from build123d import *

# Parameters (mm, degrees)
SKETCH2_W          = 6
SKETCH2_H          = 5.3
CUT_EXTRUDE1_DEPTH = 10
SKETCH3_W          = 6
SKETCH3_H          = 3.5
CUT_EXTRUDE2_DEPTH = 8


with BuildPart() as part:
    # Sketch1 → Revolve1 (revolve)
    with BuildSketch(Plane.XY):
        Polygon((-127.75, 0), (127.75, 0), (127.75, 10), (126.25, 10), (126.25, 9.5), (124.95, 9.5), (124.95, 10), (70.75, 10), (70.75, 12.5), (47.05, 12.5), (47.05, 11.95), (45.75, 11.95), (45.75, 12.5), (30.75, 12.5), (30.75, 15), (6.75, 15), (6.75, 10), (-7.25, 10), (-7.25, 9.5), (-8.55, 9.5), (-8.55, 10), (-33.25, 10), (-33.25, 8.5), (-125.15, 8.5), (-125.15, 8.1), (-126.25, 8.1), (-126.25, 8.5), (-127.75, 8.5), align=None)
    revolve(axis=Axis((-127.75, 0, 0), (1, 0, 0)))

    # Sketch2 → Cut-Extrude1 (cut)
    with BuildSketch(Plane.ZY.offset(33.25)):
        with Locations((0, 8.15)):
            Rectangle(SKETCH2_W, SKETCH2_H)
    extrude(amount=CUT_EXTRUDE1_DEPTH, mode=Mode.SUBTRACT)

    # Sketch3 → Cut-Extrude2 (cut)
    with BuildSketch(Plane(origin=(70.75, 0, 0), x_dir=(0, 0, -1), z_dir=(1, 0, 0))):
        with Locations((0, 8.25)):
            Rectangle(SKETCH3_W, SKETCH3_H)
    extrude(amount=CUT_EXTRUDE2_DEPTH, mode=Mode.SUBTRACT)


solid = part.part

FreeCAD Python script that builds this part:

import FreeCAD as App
import Part
import Sketcher
from FreeCAD import Vector
Q = App.Units.Quantity


def add_polygon(sketch, points):
    """Adds a closed chain of lines whose ends are joined by coincident constraints."""
    first, n = sketch.GeometryCount, len(points)
    for a, b in zip(points, points[1:] + points[:1]):
        sketch.addGeometry(Part.LineSegment(App.Vector(*a, 0), App.Vector(*b, 0)), False)
    for i in range(n):
        sketch.addConstraint(Sketcher.Constraint("Coincident", first + i, 2, first + (i + 1) % n, 1))

doc = App.newDocument("Part")
params = doc.addObject("Spreadsheet::Sheet", "Params")
for row, (alias, value) in enumerate([
    ("sketch1_width", "15 mm"),
    ("sketch1_width2", "24 mm"),
    ("sketch1_width3", "14 mm"),
    ("sketch1_height", "10 mm"),
    ("sketch1_height2", "5 mm"),
    ("revolution_angle", "360 deg"),
    ("sketch2_height", "6 mm"),
    ("sketch2_width", "5.3 mm"),
    ("pocket1_length", "10 mm"),
    ("sketch3_height", "6 mm"),
    ("sketch3_width", "3.5 mm"),
    ("pocket2_length", "8 mm"),
], start=1):
    params.set(f"A{row}", alias)
    params.set(f"B{row}", "=" + value)
    params.setAlias(f"B{row}", alias)

body = doc.addObject("PartDesign::Body", "Body")

sketch1 = body.newObject("Sketcher::SketchObject", "Sketch")
sketch1.AttachmentSupport = (doc.getObject("XY_Plane"), [""])
sketch1.MapMode = "FlatFace"
add_polygon(sketch1, [(-127.75, 0), (127.75, 0), (127.75, 10), (126.25, 10), (126.25, 9.5), (124.95, 9.5), (124.95, 10), (70.75, 10), (70.75, 12.5), (47.05, 12.5), (47.05, 11.95), (45.75, 11.95), (45.75, 12.5), (30.75, 12.5), (30.75, 15), (6.75, 15), (6.75, 10), (-7.25, 10), (-7.25, 9.5), (-8.55, 9.5), (-8.55, 10), (-33.25, 10), (-33.25, 8.5), (-125.15, 8.5), (-125.15, 8.1), (-126.25, 8.1), (-126.25, 8.5), (-127.75, 8.5)])
sketch1.addConstraint(Sketcher.Constraint("Horizontal", 0))
sketch1.addConstraint(Sketcher.Constraint("Vertical", 1))
sketch1.addConstraint(Sketcher.Constraint("Horizontal", 2))
sketch1.addConstraint(Sketcher.Constraint("Vertical", 3))
sketch1.addConstraint(Sketcher.Constraint("Horizontal", 4))
sketch1.addConstraint(Sketcher.Constraint("Vertical", 5))
sketch1.addConstraint(Sketcher.Constraint("Horizontal", 6))
sketch1.addConstraint(Sketcher.Constraint("Vertical", 7))
sketch1.addConstraint(Sketcher.Constraint("Horizontal", 8))
sketch1.addConstraint(Sketcher.Constraint("Vertical", 9))
sketch1.addConstraint(Sketcher.Constraint("Horizontal", 10))
sketch1.addConstraint(Sketcher.Constraint("Vertical", 11))
sketch1.addConstraint(Sketcher.Constraint("Horizontal", 12))
sketch1.addConstraint(Sketcher.Constraint("Vertical", 13))
sketch1.addConstraint(Sketcher.Constraint("Horizontal", 14))
sketch1.addConstraint(Sketcher.Constraint("Vertical", 15))
sketch1.addConstraint(Sketcher.Constraint("Horizontal", 16))
sketch1.addConstraint(Sketcher.Constraint("Vertical", 17))
sketch1.addConstraint(Sketcher.Constraint("Horizontal", 18))
sketch1.addConstraint(Sketcher.Constraint("Vertical", 19))
sketch1.addConstraint(Sketcher.Constraint("Horizontal", 20))
sketch1.addConstraint(Sketcher.Constraint("Vertical", 21))
sketch1.addConstraint(Sketcher.Constraint("Horizontal", 22))
sketch1.addConstraint(Sketcher.Constraint("Vertical", 23))
sketch1.addConstraint(Sketcher.Constraint("Horizontal", 24))
sketch1.addConstraint(Sketcher.Constraint("Vertical", 25))
sketch1.addConstraint(Sketcher.Constraint("Horizontal", 26))
sketch1.addConstraint(Sketcher.Constraint("Vertical", 27))
sketch1.addConstraint(Sketcher.Constraint("Symmetric", 0, 2, 27, 2, -1, 1))
sketch1.addConstraint(Sketcher.Constraint("Horizontal", 2, 2, 5, 2))
sketch1.addConstraint(Sketcher.Constraint("Horizontal", 8, 2, 11, 2))
sketch1.addConstraint(Sketcher.Constraint("Horizontal", 6, 2, 15, 2))
sketch1.addConstraint(Sketcher.Constraint("Horizontal", 4, 2, 17, 2))
sketch1.addConstraint(Sketcher.Constraint("Horizontal", 16, 2, 19, 2))
sketch1.addConstraint(Sketcher.Constraint("Horizontal", 22, 2, 25, 2))
sketch1.addConstraint(Sketcher.Constraint("Equal", 4, 10))
sketch1.addConstraint(Sketcher.Constraint("Equal", 10, 18))
sketch1.addConstraint(Sketcher.Constraint("Equal", 2, 26))
sketch1.addConstraint(Sketcher.Constraint("Equal", 7, 13))
sketch1.addConstraint(Sketcher.Constraint("Equal", 26, 21))
sketch1.addConstraint(Sketcher.Constraint("DistanceX", 12, 2, 12, 1, Q("15 mm")))
sketch1.addConstraint(Sketcher.Constraint("DistanceX", 14, 2, 14, 1, Q("24 mm")))
sketch1.addConstraint(Sketcher.Constraint("DistanceX", 16, 2, 16, 1, Q("14 mm")))
sketch1.addConstraint(Sketcher.Constraint("DistanceY", 1, 1, 1, 2, Q("10 mm")))
sketch1.addConstraint(Sketcher.Constraint("DistanceY", 15, 2, 15, 1, Q("5 mm")))
sketch1.addConstraint(Sketcher.Constraint("DistanceX", 0, 1, 0, 2, Q("255.5 mm")))
sketch1.addConstraint(Sketcher.Constraint("DistanceX", 2, 2, 2, 1, Q("1.5 mm")))
sketch1.addConstraint(Sketcher.Constraint("DistanceX", 4, 2, 4, 1, Q("1.3 mm")))
sketch1.addConstraint(Sketcher.Constraint("DistanceX", 6, 2, 6, 1, Q("54.2 mm")))
sketch1.addConstraint(Sketcher.Constraint("DistanceX", 8, 2, 8, 1, Q("23.7 mm")))
sketch1.addConstraint(Sketcher.Constraint("DistanceX", 20, 2, 20, 1, Q("24.7 mm")))
sketch1.addConstraint(Sketcher.Constraint("DistanceX", 22, 2, 22, 1, Q("91.9 mm")))
sketch1.addConstraint(Sketcher.Constraint("DistanceY", 3, 2, 3, 1, Q("0.5 mm")))
sketch1.addConstraint(Sketcher.Constraint("DistanceY", 23, 2, 23, 1, Q("0.4 mm")))
sketch1.addConstraint(Sketcher.Constraint("DistanceY", 9, 2, 9, 1, Q("0.55 mm")))
sketch1.setExpression("Constraints[68]", "Params.sketch1_width")
sketch1.setExpression("Constraints[69]", "Params.sketch1_width2")
sketch1.setExpression("Constraints[70]", "Params.sketch1_width3")
sketch1.setExpression("Constraints[71]", "Params.sketch1_height")
sketch1.setExpression("Constraints[72]", "Params.sketch1_height2")
revolution = body.newObject("PartDesign::Revolution", "Revolution")
revolution.Profile = sketch1
revolution.ReferenceAxis = (sketch1, ["H_Axis"])
revolution.setExpression("Angle", "Params.revolution_angle")

sketch2 = body.newObject("Sketcher::SketchObject", "Sketch001")
sketch2.AttachmentSupport = (doc.getObject("YZ_Plane"), [""])
sketch2.MapMode = "FlatFace"
sketch2.AttachmentOffset = App.Placement(Vector(0, 0, -33.25), App.Rotation())
add_polygon(sketch2, [(11, -3), (6, -3), (6, 3), (11, 3)])
sketch2.addConstraint(Sketcher.Constraint("Horizontal", 0))
sketch2.addConstraint(Sketcher.Constraint("Vertical", 1))
sketch2.addConstraint(Sketcher.Constraint("Horizontal", 2))
sketch2.addConstraint(Sketcher.Constraint("Vertical", 3))
sketch2.addConstraint(Sketcher.Constraint("DistanceY", 1, 1, 1, 2, Q("6 mm")))
sketch2.addConstraint(Sketcher.Constraint("DistanceX", 0, 2, 0, 1, Q("5.3 mm")))
sketch2.addConstraint(Sketcher.Constraint("DistanceY", 0, 2, -1, 1, Q("3 mm")))
sketch2.addConstraint(Sketcher.Constraint("DistanceX", -1, 1, 0, 2, Q("5.5 mm")))
sketch2.setExpression("Constraints[8]", "Params.sketch2_height")
sketch2.setExpression("Constraints[9]", "Params.sketch2_width")
pocket1 = body.newObject("PartDesign::Pocket", "Pocket")
pocket1.Profile = sketch2
pocket1.setExpression("Length", "Params.pocket1_length")

sketch3 = body.newObject("Sketcher::SketchObject", "Sketch002")
sketch3.AttachmentSupport = (doc.getObject("YZ_Plane"), [""])
sketch3.MapMode = "FlatFace"
sketch3.AttachmentOffset = App.Placement(Vector(0, 0, 70.75), App.Rotation())
add_polygon(sketch3, [(10, 3), (6.5, 3), (6.5, -3), (10, -3)])
sketch3.addConstraint(Sketcher.Constraint("Horizontal", 0))
sketch3.addConstraint(Sketcher.Constraint("Vertical", 1))
sketch3.addConstraint(Sketcher.Constraint("Horizontal", 2))
sketch3.addConstraint(Sketcher.Constraint("Vertical", 3))
sketch3.addConstraint(Sketcher.Constraint("DistanceY", 1, 2, 1, 1, Q("6 mm")))
sketch3.addConstraint(Sketcher.Constraint("DistanceX", 0, 2, 0, 1, Q("3.5 mm")))
sketch3.addConstraint(Sketcher.Constraint("DistanceY", -1, 1, 0, 2, Q("3 mm")))
sketch3.addConstraint(Sketcher.Constraint("DistanceX", -1, 1, 2, 2, Q("10 mm")))
sketch3.setExpression("Constraints[8]", "Params.sketch3_height")
sketch3.setExpression("Constraints[9]", "Params.sketch3_width")
pocket2 = body.newObject("PartDesign::Pocket", "Pocket001")
pocket2.Profile = sketch3
pocket2.setExpression("Length", "Params.pocket2_length")
pocket2.Reversed = True

doc.recompute()
